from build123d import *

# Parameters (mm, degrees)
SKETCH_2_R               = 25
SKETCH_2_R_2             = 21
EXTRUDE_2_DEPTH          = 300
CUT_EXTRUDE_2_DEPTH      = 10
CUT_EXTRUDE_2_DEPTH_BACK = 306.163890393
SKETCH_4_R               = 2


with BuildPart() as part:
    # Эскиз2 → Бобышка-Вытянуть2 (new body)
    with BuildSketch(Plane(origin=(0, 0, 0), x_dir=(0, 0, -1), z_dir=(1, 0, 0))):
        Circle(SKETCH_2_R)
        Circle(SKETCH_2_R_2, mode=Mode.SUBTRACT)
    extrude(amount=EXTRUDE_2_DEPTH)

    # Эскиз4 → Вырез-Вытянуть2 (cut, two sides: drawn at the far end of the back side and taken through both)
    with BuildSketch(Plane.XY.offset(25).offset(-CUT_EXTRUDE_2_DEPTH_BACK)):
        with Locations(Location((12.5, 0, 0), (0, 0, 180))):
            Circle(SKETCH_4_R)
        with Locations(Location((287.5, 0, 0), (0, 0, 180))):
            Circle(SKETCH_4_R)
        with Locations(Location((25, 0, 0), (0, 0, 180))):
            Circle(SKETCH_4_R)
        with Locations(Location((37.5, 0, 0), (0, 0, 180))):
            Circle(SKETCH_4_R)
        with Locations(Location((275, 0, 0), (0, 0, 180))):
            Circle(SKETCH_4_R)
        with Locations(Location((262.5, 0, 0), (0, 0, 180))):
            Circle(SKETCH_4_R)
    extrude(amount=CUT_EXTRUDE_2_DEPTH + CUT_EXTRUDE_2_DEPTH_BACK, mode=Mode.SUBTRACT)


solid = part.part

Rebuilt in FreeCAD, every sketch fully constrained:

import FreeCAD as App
import Part
import Sketcher
from FreeCAD import Vector
Q = App.Units.Quantity

doc = App.newDocument("Part")
params = doc.addObject("Spreadsheet::Sheet", "Params")
for row, (alias, value) in enumerate([
    ("sketch1_diameter", "50 mm"),
    ("sketch1_diameter2", "42 mm"),
    ("pad1_length", "300 mm"),
    ("sketch2_diameter", "4 mm"),
], start=1):
    params.set(f"A{row}", alias)
    params.set(f"B{row}", "=" + value)
    params.setAlias(f"B{row}", alias)

body = doc.addObject("PartDesign::Body", "Body")

# Sketch on YZ plane
sketch1 = doc.addObject("Sketcher::SketchObject", "Sketch")
body.addObject(sketch1)
sketch1.AttachmentSupport = (doc.YZ_Plane, [""])
sketch1.MapMode = "FlatFace"
sketch1.addGeometry(Part.Circle(Vector(0, 0, 0), Vector(0, 0, 1), 25), False)
sketch1.addGeometry(Part.Circle(Vector(0, 0, 0), Vector(0, 0, 1), 21), False)
sketch1.addConstraint(Sketcher.Constraint("Coincident", 0, 3, -1, 1))
sketch1.addConstraint(Sketcher.Constraint("Coincident", 1, 3, -1, 1))
sketch1.addConstraint(Sketcher.Constraint("Diameter", 0, Q("50 mm")))
sketch1.addConstraint(Sketcher.Constraint("Diameter", 1, Q("42 mm")))
sketch1.setExpression("Constraints[2]", "Params.sketch1_diameter")
sketch1.setExpression("Constraints[3]", "Params.sketch1_diameter2")
pad1 = doc.addObject("PartDesign::Pad", "Pad")
body.addObject(pad1)
pad1.Profile = sketch1
pad1.setExpression("Length", "Params.pad1_length")

# Sketch on XY plane
sketch2 = doc.addObject("Sketcher::SketchObject", "Sketch001")
body.addObject(sketch2)
sketch2.AttachmentSupport = (doc.XY_Plane, [""])
sketch2.MapMode = "FlatFace"
sketch2.AttachmentOffset = App.Placement(Vector(0, 0, 25), App.Rotation())
sketch2.addGeometry(Part.Circle(Vector(12.5, 0, 0), Vector(0, 0, 1), 2), False)
sketch2.addGeometry(Part.Circle(Vector(287.5, 0, 0), Vector(0, 0, 1), 2), False)
sketch2.addGeometry(Part.Circle(Vector(25, 0, 0), Vector(0, 0, 1), 2), False)
sketch2.addGeometry(Part.Circle(Vector(37.5, 0, 0), Vector(0, 0, 1), 2), False)
sketch2.addGeometry(Part.Circle(Vector(275, 0, 0), Vector(0, 0, 1), 2), False)
sketch2.addGeometry(Part.Circle(Vector(262.5, 0, 0), Vector(0, 0, 1), 2), False)
sketch2.addConstraint(Sketcher.Constraint("Equal", 0, 1))
sketch2.addConstraint(Sketcher.Constraint("Equal", 1, 2))
sketch2.addConstraint(Sketcher.Constraint("Equal", 2, 3))
sketch2.addConstraint(Sketcher.Constraint("Equal", 3, 4))
sketch2.addConstraint(Sketcher.Constraint("Equal", 4, 5))
sketch2.addConstraint(Sketcher.Constraint("PointOnObject", 0, 3, -1))
sketch2.addConstraint(Sketcher.Constraint("PointOnObject", 1, 3, -1))
sketch2.addConstraint(Sketcher.Constraint("PointOnObject", 2, 3, -1))
sketch2.addConstraint(Sketcher.Constraint("PointOnObject", 3, 3, -1))
sketch2.addConstraint(Sketcher.Constraint("PointOnObject", 4, 3, -1))
sketch2.addConstraint(Sketcher.Constraint("PointOnObject", 5, 3, -1))
sketch2.addConstraint(Sketcher.Constraint("Diameter", 0, Q("4 mm")))
sketch2.addConstraint(Sketcher.Constraint("DistanceX", -1, 1, 2, 3, Q("25 mm")))
sketch2.addConstraint(Sketcher.Constraint("DistanceX", -1, 1, 4, 3, Q("275 mm")))
sketch2.addConstraint(Sketcher.Constraint("DistanceX", 0, 3, 1, 3, Q("275 mm")))
sketch2.addConstraint(Sketcher.Constraint("DistanceX", 0, 3, 3, 3, Q("25 mm")))
sketch2.addConstraint(Sketcher.Constraint("DistanceX", 5, 3, 1, 3, Q("25 mm")))
sketch2.addConstraint(Sketcher.Constraint("DistanceX", -1, 1, 0, 3, Q("12.5 mm")))
sketch2.setExpression("Constraints[11]", "Params.sketch2_diameter")
pocket1 = doc.addObject("PartDesign::Pocket", "Pocket")
body.addObject(pocket1)
pocket1.Profile = sketch2
pocket1.Type = "ThroughAll"
pocket1.Midplane = True

doc.recompute()
